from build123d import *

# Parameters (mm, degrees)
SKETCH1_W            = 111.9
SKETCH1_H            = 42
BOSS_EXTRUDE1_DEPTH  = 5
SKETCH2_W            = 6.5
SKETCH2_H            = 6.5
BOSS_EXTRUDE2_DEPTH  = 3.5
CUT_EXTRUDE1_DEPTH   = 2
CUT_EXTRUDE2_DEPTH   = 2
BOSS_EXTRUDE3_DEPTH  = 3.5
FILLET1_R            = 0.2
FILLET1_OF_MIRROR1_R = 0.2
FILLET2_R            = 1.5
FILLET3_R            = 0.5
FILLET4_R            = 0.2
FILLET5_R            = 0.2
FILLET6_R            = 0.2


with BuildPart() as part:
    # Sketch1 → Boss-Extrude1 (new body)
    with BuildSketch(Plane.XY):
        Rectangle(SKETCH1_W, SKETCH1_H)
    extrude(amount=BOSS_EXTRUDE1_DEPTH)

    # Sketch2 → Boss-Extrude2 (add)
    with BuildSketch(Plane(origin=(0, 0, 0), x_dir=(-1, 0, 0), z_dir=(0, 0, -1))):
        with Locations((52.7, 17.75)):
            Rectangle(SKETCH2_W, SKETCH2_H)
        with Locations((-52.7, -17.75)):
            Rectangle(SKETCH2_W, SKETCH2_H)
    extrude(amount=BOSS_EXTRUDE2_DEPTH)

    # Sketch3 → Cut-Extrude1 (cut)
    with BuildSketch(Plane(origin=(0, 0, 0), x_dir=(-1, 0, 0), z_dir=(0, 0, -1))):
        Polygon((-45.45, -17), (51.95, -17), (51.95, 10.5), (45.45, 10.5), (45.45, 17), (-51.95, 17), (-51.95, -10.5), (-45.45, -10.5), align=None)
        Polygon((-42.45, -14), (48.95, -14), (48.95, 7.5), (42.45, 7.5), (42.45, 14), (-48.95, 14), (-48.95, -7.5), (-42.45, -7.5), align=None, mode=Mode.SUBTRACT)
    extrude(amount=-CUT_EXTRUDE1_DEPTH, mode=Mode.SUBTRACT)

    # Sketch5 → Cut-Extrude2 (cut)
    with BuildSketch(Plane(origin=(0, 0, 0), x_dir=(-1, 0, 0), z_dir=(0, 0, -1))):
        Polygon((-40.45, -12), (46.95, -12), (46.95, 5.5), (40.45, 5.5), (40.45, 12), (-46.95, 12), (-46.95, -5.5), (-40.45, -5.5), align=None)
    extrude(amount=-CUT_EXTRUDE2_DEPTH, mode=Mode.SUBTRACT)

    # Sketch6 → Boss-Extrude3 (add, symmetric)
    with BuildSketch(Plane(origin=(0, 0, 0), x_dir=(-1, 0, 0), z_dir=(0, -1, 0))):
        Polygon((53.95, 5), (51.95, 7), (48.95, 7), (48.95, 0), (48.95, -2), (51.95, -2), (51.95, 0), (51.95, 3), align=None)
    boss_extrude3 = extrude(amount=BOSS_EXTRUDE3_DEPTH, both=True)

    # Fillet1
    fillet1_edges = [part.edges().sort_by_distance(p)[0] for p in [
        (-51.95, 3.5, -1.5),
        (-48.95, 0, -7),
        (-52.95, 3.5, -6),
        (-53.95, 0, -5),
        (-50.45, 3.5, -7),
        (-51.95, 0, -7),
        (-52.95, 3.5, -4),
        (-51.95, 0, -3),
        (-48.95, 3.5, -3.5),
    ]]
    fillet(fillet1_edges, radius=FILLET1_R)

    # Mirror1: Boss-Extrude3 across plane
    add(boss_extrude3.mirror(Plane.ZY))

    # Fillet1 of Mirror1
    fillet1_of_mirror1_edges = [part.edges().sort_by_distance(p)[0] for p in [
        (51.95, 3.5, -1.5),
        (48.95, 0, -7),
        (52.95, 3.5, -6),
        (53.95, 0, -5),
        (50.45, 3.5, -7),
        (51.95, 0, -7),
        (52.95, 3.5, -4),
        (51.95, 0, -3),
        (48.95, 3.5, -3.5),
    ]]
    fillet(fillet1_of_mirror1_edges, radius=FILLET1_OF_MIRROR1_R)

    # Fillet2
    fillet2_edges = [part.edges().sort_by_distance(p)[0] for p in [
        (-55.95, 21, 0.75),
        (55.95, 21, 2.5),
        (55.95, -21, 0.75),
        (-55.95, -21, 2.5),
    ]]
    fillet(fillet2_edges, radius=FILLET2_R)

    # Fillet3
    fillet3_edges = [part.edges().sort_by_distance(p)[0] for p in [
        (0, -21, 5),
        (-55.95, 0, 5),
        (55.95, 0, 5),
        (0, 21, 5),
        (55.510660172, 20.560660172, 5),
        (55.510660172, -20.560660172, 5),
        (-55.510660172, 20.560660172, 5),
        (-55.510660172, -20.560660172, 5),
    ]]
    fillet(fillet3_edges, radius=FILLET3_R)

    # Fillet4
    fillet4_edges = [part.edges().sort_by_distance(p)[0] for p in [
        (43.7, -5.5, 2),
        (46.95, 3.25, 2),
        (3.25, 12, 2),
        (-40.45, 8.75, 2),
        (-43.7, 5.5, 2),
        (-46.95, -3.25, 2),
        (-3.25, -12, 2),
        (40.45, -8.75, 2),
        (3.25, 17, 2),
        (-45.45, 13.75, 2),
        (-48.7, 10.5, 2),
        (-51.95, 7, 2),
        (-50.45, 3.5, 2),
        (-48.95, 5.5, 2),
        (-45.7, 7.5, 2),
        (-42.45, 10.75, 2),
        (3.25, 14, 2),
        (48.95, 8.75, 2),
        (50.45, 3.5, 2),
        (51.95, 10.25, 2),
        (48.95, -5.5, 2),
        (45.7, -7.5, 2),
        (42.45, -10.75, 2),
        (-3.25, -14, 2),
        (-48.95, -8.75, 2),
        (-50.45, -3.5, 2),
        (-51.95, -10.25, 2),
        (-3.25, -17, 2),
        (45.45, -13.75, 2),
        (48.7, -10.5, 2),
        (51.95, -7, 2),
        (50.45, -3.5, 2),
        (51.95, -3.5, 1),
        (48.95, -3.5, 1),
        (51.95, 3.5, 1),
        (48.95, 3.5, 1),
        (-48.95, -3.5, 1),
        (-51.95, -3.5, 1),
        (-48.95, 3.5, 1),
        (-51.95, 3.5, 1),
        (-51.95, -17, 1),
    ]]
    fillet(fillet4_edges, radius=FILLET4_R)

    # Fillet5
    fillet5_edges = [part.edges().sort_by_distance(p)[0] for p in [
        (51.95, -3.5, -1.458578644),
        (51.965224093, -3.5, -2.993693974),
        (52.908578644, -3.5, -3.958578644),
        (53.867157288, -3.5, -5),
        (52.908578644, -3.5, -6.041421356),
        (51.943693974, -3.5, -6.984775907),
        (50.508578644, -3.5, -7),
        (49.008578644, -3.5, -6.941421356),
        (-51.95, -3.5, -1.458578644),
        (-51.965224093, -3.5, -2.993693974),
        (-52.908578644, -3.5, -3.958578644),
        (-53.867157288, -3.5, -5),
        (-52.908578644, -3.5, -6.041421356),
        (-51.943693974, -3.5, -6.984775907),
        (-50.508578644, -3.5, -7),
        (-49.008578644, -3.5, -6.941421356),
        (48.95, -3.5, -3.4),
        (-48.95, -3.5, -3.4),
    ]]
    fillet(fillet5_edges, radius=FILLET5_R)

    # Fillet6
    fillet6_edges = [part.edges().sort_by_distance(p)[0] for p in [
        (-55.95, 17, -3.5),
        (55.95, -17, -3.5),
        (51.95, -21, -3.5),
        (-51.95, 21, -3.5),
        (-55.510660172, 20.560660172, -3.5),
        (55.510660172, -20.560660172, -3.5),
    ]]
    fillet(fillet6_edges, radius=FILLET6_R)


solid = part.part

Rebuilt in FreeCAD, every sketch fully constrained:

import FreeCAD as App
import Part
import Sketcher
Q = App.Units.Quantity


def edges_at(feature, points):
    """Names of the edges that pass closest to the given points."""
    edges = feature.Shape.Edges
    near = lambda p: min(range(len(edges)), key=lambda i: edges[i].distToShape(Part.Vertex(*p))[0])
    return sorted({f"Edge{near(p) + 1}" for p in points})

doc = App.newDocument("Part")
body = doc.addObject("PartDesign::Body", "Body")

sketch1 = body.newObject("Sketcher::SketchObject", "Sketch")
sketch1.AttachmentSupport = (doc.getObject("XY_Plane"), [""])
sketch1.MapMode = "FlatFace"
sketch1.addGeometry([
    Part.LineSegment(App.Vector(-56, 21, 0), App.Vector(-56, -21, 0)),
    Part.LineSegment(App.Vector(-56, -21, 0), App.Vector(56, -21, 0)),
    Part.LineSegment(App.Vector(56, -21, 0), App.Vector(56, 21, 0)),
    Part.LineSegment(App.Vector(56, 21, 0), App.Vector(-56, 21, 0)),
], False)
sketch1.addConstraint([
    Sketcher.Constraint("Coincident", 0, 2, 1, 1),
    Sketcher.Constraint("Coincident", 1, 2, 2, 1),
    Sketcher.Constraint("Coincident", 2, 2, 3, 1),
    Sketcher.Constraint("Coincident", 3, 2, 0, 1),
    Sketcher.Constraint("Vertical", 0),
    Sketcher.Constraint("Horizontal", 1),
    Sketcher.Constraint("Vertical", 2),
    Sketcher.Constraint("Horizontal", 3),
    Sketcher.Constraint("Symmetric", 0, 2, 2, 2, -1, 1),
    Sketcher.Constraint("DistanceY", 0, 2, 0, 1, Q("42 mm")),
    Sketcher.Constraint("DistanceX", 1, 1, 1, 2, Q("111.9 mm")),
])
pad1 = body.newObject("PartDesign::Pad", "Pad")
pad1.Profile = sketch1
pad1.Length = 5

sketch2 = body.newObject("Sketcher::SketchObject", "Sketch001")
sketch2.AttachmentSupport = (doc.getObject("XY_Plane"), [""])
sketch2.MapMode = "FlatFace"
sketch2.addGeometry([
    Part.LineSegment(App.Vector(-49, 21, 0), App.Vector(-49, 14, 0)),
    Part.LineSegment(App.Vector(-49, 14, 0), App.Vector(-56, 14, 0)),
    Part.LineSegment(App.Vector(-56, 14, 0), App.Vector(-56, 21, 0)),
    Part.LineSegment(App.Vector(-56, 21, 0), App.Vector(-49, 21, 0)),
    Part.LineSegment(App.Vector(56, -14, 0), App.Vector(56, -21, 0)),
    Part.LineSegment(App.Vector(56, -21, 0), App.Vector(49, -21, 0)),
    Part.LineSegment(App.Vector(49, -21, 0), App.Vector(49, -14, 0)),
    Part.LineSegment(App.Vector(49, -14, 0), App.Vector(56, -14, 0)),
], False)
sketch2.addConstraint([
    Sketcher.Constraint("Coincident", 0, 2, 1, 1),
    Sketcher.Constraint("Coincident", 1, 2, 2, 1),
    Sketcher.Constraint("Coincident", 2, 2, 3, 1),
    Sketcher.Constraint("Coincident", 3, 2, 0, 1),
    Sketcher.Constraint("Coincident", 4, 2, 5, 1),
    Sketcher.Constraint("Coincident", 5, 2, 6, 1),
    Sketcher.Constraint("Coincident", 6, 2, 7, 1),
    Sketcher.Constraint("Coincident", 7, 2, 4, 1),
    Sketcher.Constraint("Vertical", 0),
    Sketcher.Constraint("Horizontal", 1),
    Sketcher.Constraint("Vertical", 2),
    Sketcher.Constraint("Horizontal", 3),
    Sketcher.Constraint("Vertical", 4),
    Sketcher.Constraint("Horizontal", 5),
    Sketcher.Constraint("Vertical", 6),
    Sketcher.Constraint("Horizontal", 7),
    Sketcher.Constraint("Symmetric", 2, 2, 4, 2, -1, 1),
    Sketcher.Constraint("Symmetric", 0, 2, 6, 2, -1, 1),
    Sketcher.Constraint("Equal", 7, 0),
    Sketcher.Constraint("DistanceX", 1, 2, 1, 1, Q("6.5 mm")),
    Sketcher.Constraint("DistanceY", -1, 1, 2, 2, Q("21 mm")),
    Sketcher.Constraint("DistanceX", 0, 2, 4, 2, Q("105.4 mm")),
])
pad2 = body.newObject("PartDesign::Pad", "Pad001")
pad2.Profile = sketch2
pad2.Length = 3.5
pad2.Reversed = True

sketch3 = body.newObject("Sketcher::SketchObject", "Sketch002")
sketch3.AttachmentSupport = (doc.getObject("XY_Plane"), [""])
sketch3.MapMode = "FlatFace"
sketch3.addGeometry([
    Part.LineSegment(App.Vector(45, -17, 0), App.Vector(-52, -17, 0)),
    Part.LineSegment(App.Vector(-52, -17, 0), App.Vector(-52, 10, 0)),
    Part.LineSegment(App.Vector(-52, 10, 0), App.Vector(-45, 10, 0)),
    Part.LineSegment(App.Vector(-45, 10, 0), App.Vector(-45, 17, 0)),
    Part.LineSegment(App.Vector(-45, 17, 0), App.Vector(52, 17, 0)),
    Part.LineSegment(App.Vector(52, 17, 0), App.Vector(52, -10, 0)),
    Part.LineSegment(App.Vector(52, -10, 0), App.Vector(45, -10, 0)),
    Part.LineSegment(App.Vector(45, -10, 0), App.Vector(45, -17, 0)),
    Part.LineSegment(App.Vector(-49, -14, 0), App.Vector(42, -14, 0)),
    Part.LineSegment(App.Vector(42, -14, 0), App.Vector(42, -8, 0)),
    Part.LineSegment(App.Vector(42, -8, 0), App.Vector(49, -8, 0)),
    Part.LineSegment(App.Vector(49, -8, 0), App.Vector(49, 14, 0)),
    Part.LineSegment(App.Vector(49, 14, 0), App.Vector(-42, 14, 0)),
    Part.LineSegment(App.Vector(-42, 14, 0), App.Vector(-42, 8, 0)),
    Part.LineSegment(App.Vector(-42, 8, 0), App.Vector(-49, 8, 0)),
    Part.LineSegment(App.Vector(-49, 8, 0), App.Vector(-49, -14, 0)),
], False)
sketch3.addConstraint([
    Sketcher.Constraint("Coincident", 0, 2, 1, 1),
    Sketcher.Constraint("Coincident", 1, 2, 2, 1),
    Sketcher.Constraint("Coincident", 2, 2, 3, 1),
    Sketcher.Constraint("Coincident", 3, 2, 4, 1),
    Sketcher.Constraint("Coincident", 4, 2, 5, 1),
    Sketcher.Constraint("Coincident", 5, 2, 6, 1),
    Sketcher.Constraint("Coincident", 6, 2, 7, 1),
    Sketcher.Constraint("Coincident", 7, 2, 0, 1),
    Sketcher.Constraint("Coincident", 8, 2, 9, 1),
    Sketcher.Constraint("Coincident", 9, 2, 10, 1),
    Sketcher.Constraint("Coincident", 10, 2, 11, 1),
    Sketcher.Constraint("Coincident", 11, 2, 12, 1),
    Sketcher.Constraint("Coincident", 12, 2, 13, 1),
    Sketcher.Constraint("Coincident", 13, 2, 14, 1),
    Sketcher.Constraint("Coincident", 14, 2, 15, 1),
    Sketcher.Constraint("Coincident", 15, 2, 8, 1),
    Sketcher.Constraint("Horizontal", 0),
    Sketcher.Constraint("Vertical", 1),
    Sketcher.Constraint("Horizontal", 2),
    Sketcher.Constraint("Vertical", 3),
    Sketcher.Constraint("Horizontal", 4),
    Sketcher.Constraint("Vertical", 5),
    Sketcher.Constraint("Horizontal", 6),
    Sketcher.Constraint("Vertical", 7),
    Sketcher.Constraint("Horizontal", 8),
    Sketcher.Constraint("Vertical", 9),
    Sketcher.Constraint("Horizontal", 10),
    Sketcher.Constraint("Vertical", 11),
    Sketcher.Constraint("Horizontal", 12),
    Sketcher.Constraint("Vertical", 13),
    Sketcher.Constraint("Horizontal", 14),
    Sketcher.Constraint("Vertical", 15),
    Sketcher.Constraint("Symmetric", 0, 2, 4, 2, -1, 1),
    Sketcher.Constraint("Symmetric", 2, 2, 6, 2, -1, 1),
    Sketcher.Constraint("Symmetric", 8, 2, 12, 2, -1, 1),
    Sketcher.Constraint("Symmetric", 10, 2, 14, 2, -1, 1),
    Sketcher.Constraint("Equal", 6, 10),
    Sketcher.Constraint("Equal", 14, 3),
    Sketcher.Constraint("Equal", 7, 9),
    Sketcher.Constraint("DistanceX", 0, 2, 0, 1, Q("97.4 mm")),
    Sketcher.Constraint("DistanceX", 2, 1, 2, 2, Q("6.5 mm")),
    Sketcher.Constraint("DistanceX", 8, 1, 8, 2, Q("91.4 mm")),
    Sketcher.Constraint("DistanceY", 1, 1, 1, 2, Q("27.5 mm")),
    Sketcher.Constraint("DistanceY", 11, 1, 11, 2, Q("21.5 mm")),
])
pocket1 = body.newObject("PartDesign::Pocket", "Pocket")
pocket1.Profile = sketch3
pocket1.Length = 2
pocket1.Reversed = True

sketch4 = body.newObject("Sketcher::SketchObject", "Sketch003")
sketch4.AttachmentSupport = (doc.getObject("XY_Plane"), [""])
sketch4.MapMode = "FlatFace"
sketch4.addGeometry([
    Part.LineSegment(App.Vector(40, -12, 0), App.Vector(-47, -12, 0)),
    Part.LineSegment(App.Vector(-47, -12, 0), App.Vector(-47, 6, 0)),
    Part.LineSegment(App.Vector(-47, 6, 0), App.Vector(-40, 6, 0)),
    Part.LineSegment(App.Vector(-40, 6, 0), App.Vector(-40, 12, 0)),
    Part.LineSegment(App.Vector(-40, 12, 0), App.Vector(47, 12, 0)),
    Part.LineSegment(App.Vector(47, 12, 0), App.Vector(47, -6, 0)),
    Part.LineSegment(App.Vector(47, -6, 0), App.Vector(40, -6, 0)),
    Part.LineSegment(App.Vector(40, -6, 0), App.Vector(40, -12, 0)),
], False)
sketch4.addConstraint([
    Sketcher.Constraint("Coincident", 0, 2, 1, 1),
    Sketcher.Constraint("Coincident", 1, 2, 2, 1),
    Sketcher.Constraint("Coincident", 2, 2, 3, 1),
    Sketcher.Constraint("Coincident", 3, 2, 4, 1),
    Sketcher.Constraint("Coincident", 4, 2, 5, 1),
    Sketcher.Constraint("Coincident", 5, 2, 6, 1),
    Sketcher.Constraint("Coincident", 6, 2, 7, 1),
    Sketcher.Constraint("Coincident", 7, 2, 0, 1),
    Sketcher.Constraint("Horizontal", 0),
    Sketcher.Constraint("Vertical", 1),
    Sketcher.Constraint("Horizontal", 2),
    Sketcher.Constraint("Vertical", 3),
    Sketcher.Constraint("Horizontal", 4),
    Sketcher.Constraint("Vertical", 5),
    Sketcher.Constraint("Horizontal", 6),
    Sketcher.Constraint("Vertical", 7),
    Sketcher.Constraint("Symmetric", 0, 2, 4, 2, -1, 1),
    Sketcher.Constraint("Symmetric", 2, 2, 6, 2, -1, 1),
    Sketcher.Constraint("Equal", 6, 3),
    Sketcher.Constraint("DistanceX", 0, 2, 0, 1, Q("87.4 mm")),
    Sketcher.Constraint("DistanceX", 2, 1, 2, 2, Q("6.5 mm")),
    Sketcher.Constraint("DistanceY", 1, 1, 1, 2, Q("17.5 mm")),
])
pocket2 = body.newObject("PartDesign::Pocket", "Pocket001")
pocket2.Profile = sketch4
pocket2.Length = 2
pocket2.Reversed = True

sketch5 = body.newObject("Sketcher::SketchObject", "Sketch004")
sketch5.AttachmentSupport = (doc.getObject("XZ_Plane"), [""])
sketch5.MapMode = "FlatFace"
sketch5.addGeometry([
    Part.LineSegment(App.Vector(-54, -5, 0), App.Vector(-52, -7, 0)),
    Part.LineSegment(App.Vector(-52, -7, 0), App.Vector(-49, -7, 0)),
    Part.LineSegment(App.Vector(-49, -7, 0), App.Vector(-49, 2, 0)),
    Part.LineSegment(App.Vector(-49, 2, 0), App.Vector(-52, 2, 0)),
    Part.LineSegment(App.Vector(-52, 2, 0), App.Vector(-52, -3, 0)),
    Part.LineSegment(App.Vector(-52, -3, 0), App.Vector(-54, -5, 0)),
], False)
sketch5.addConstraint([
    Sketcher.Constraint("Coincident", 0, 2, 1, 1),
    Sketcher.Constraint("Coincident", 1, 2, 2, 1),
    Sketcher.Constraint("Coincident", 2, 2, 3, 1),
    Sketcher.Constraint("Coincident", 3, 2, 4, 1),
    Sketcher.Constraint("Coincident", 4, 2, 5, 1),
    Sketcher.Constraint("Coincident", 5, 2, 0, 1),
    Sketcher.Constraint("Horizontal", 1),
    Sketcher.Constraint("Vertical", 2),
    Sketcher.Constraint("Horizontal", 3),
    Sketcher.Constraint("Vertical", 4),
    Sketcher.Constraint("Perpendicular", 0, 5),
    Sketcher.Constraint("Vertical", 0, 2, 3, 2),
    Sketcher.Constraint("Equal", 0, 5),
    Sketcher.Constraint("DistanceX", 1, 1, 1, 2, Q("3 mm")),
    Sketcher.Constraint("DistanceY", 2, 1, 2, 2, Q("9 mm")),
    Sketcher.Constraint("DistanceY", 4, 2, 4, 1, Q("5 mm")),
    Sketcher.Constraint("DistanceY", 0, 2, -1, 1, Q("7 mm")),
    Sketcher.Constraint("DistanceX", 0, 2, -1, 1, Q("51.95 mm")),
])
pad3 = body.newObject("PartDesign::Pad", "Pad002")
pad3.Profile = sketch5
pad3.Length = 7
pad3.Midplane = True
doc.recompute()

fillet = body.newObject("PartDesign::Fillet", "Fillet")
fillet.Base = (pad3, edges_at(pad3, [
    (-51.95, 3.5, -1.5),
    (-48.95, 0, -7),
    (-52.95, 3.5, -6),
    (-53.95, 0, -5),
    (-50.45, 3.5, -7),
    (-51.95, 0, -7),
    (-52.95, 3.5, -4),
    (-51.95, 0, -3),
    (-48.95, 3.5, -3.5),
]))
fillet.Radius = 0.2
doc.recompute()

mirrored = body.newObject("PartDesign::Mirrored", "Mirrored")
mirrored.Originals = [pad3]
mirrored.MirrorPlane = (doc.getObject("YZ_Plane"), [""])
body.Tip = mirrored
doc.recompute()

fillet2 = body.newObject("PartDesign::Fillet", "Fillet001")
fillet2.Base = (mirrored, edges_at(mirrored, [
    (51.95, 3.5, -1.5),
    (48.95, 0, -7),
    (52.95, 3.5, -6),
    (53.95, 0, -5),
    (50.45, 3.5, -7),
    (51.95, 0, -7),
    (52.95, 3.5, -4),
    (51.95, 0, -3),
    (48.95, 3.5, -3.5),
]))
fillet2.Radius = 0.2
doc.recompute()

fillet3 = body.newObject("PartDesign::Fillet", "Fillet002")
fillet3.Base = (fillet2, edges_at(fillet2, [
    (-55.95, 21, 0.75),
    (55.95, 21, 2.5),
    (55.95, -21, 0.75),
    (-55.95, -21, 2.5),
]))
fillet3.Radius = 1.5
doc.recompute()

fillet4 = body.newObject("PartDesign::Fillet", "Fillet003")
fillet4.Base = (fillet3, edges_at(fillet3, [
    (0, -21, 5),
    (-55.95, 0, 5),
    (55.95, 0, 5),
    (0, 21, 5),
    (55.511, 20.561, 5),
    (55.511, -20.561, 5),
    (-55.511, 20.561, 5),
    (-55.511, -20.561, 5),
]))
fillet4.Radius = 0.5
doc.recompute()

fillet5 = body.newObject("PartDesign::Fillet", "Fillet004")
fillet5.Base = (fillet4, edges_at(fillet4, [
    (43.7, -5.5, 2),
    (46.95, 3.25, 2),
    (3.25, 12, 2),
    (-40.45, 8.75, 2),
    (-43.7, 5.5, 2),
    (-46.95, -3.25, 2),
    (-3.25, -12, 2),
    (40.45, -8.75, 2),
    (3.25, 17, 2),
    (-45.45, 13.75, 2),
    (-48.7, 10.5, 2),
    (-51.95, 7, 2),
    (-50.45, 3.5, 2),
    (-48.95, 5.5, 2),
    (-45.7, 7.5, 2),
    (-42.45, 10.75, 2),
    (3.25, 14, 2),
    (48.95, 8.75, 2),
    (50.45, 3.5, 2),
    (51.95, 10.25, 2),
    (48.95, -5.5, 2),
    (45.7, -7.5, 2),
    (42.45, -10.75, 2),
    (-3.25, -14, 2),
    (-48.95, -8.75, 2),
    (-50.45, -3.5, 2),
    (-51.95, -10.25, 2),
    (-3.25, -17, 2),
    (45.45, -13.75, 2),
    (48.7, -10.5, 2),
    (51.95, -7, 2),
    (50.45, -3.5, 2),
    (51.95, -3.5, 1),
    (48.95, -3.5, 1),
    (51.95, 3.5, 1),
    (48.95, 3.5, 1),
    (-48.95, -3.5, 1),
    (-51.95, -3.5, 1),
    (-48.95, 3.5, 1),
    (-51.95, 3.5, 1),
    (-51.95, -17, 1),
]))
fillet5.Radius = 0.2
doc.recompute()

fillet6 = body.newObject("PartDesign::Fillet", "Fillet005")
fillet6.Base = (fillet5, edges_at(fillet5, [
    (51.95, -3.5, -1.459),
    (51.965, -3.5, -2.994),
    (52.909, -3.5, -3.959),
    (53.867, -3.5, -5),
    (52.909, -3.5, -6.041),
    (51.944, -3.5, -6.985),
    (50.509, -3.5, -7),
    (49.009, -3.5, -6.941),
    (-51.95, -3.5, -1.459),
    (-51.965, -3.5, -2.994),
    (-52.909, -3.5, -3.959),
    (-53.867, -3.5, -5),
    (-52.909, -3.5, -6.041),
    (-51.944, -3.5, -6.985),
    (-50.509, -3.5, -7),
    (-49.009, -3.5, -6.941),
    (48.95, -3.5, -3.4),
    (-48.95, -3.5, -3.4),
]))
fillet6.Radius = 0.2
doc.recompute()

fillet7 = body.newObject("PartDesign::Fillet", "Fillet006")
fillet7.Base = (fillet6, edges_at(fillet6, [
    (-55.95, 17, -3.5),
    (55.95, -17, -3.5),
    (51.95, -21, -3.5),
    (-51.95, 21, -3.5),
    (-55.511, 20.561, -3.5),
    (55.511, -20.561, -3.5),
]))
fillet7.Radius = 0.2

doc.recompute()
